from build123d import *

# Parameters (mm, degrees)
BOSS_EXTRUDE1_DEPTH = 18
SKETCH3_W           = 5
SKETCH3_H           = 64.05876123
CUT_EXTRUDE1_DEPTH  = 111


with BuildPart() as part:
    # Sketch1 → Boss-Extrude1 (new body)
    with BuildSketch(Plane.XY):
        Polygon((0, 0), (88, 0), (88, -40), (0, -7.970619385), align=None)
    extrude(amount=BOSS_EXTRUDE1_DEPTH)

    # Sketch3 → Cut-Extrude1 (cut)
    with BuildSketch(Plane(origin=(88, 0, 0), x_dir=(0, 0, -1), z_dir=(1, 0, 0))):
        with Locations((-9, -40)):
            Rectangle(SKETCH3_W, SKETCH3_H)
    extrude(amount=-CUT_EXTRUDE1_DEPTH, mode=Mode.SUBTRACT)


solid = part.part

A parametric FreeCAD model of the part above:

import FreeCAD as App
import Part
import Sketcher

V = App.Vector
Q = App.Units.Quantity


def add_polygon(sketch, points):
    """Adds a closed chain of lines whose ends are joined by coincident constraints."""
    first, n = sketch.GeometryCount, len(points)
    for a, b in zip(points, points[1:] + points[:1]):
        sketch.addGeometry(Part.LineSegment(App.Vector(*a, 0), App.Vector(*b, 0)), False)
    for i in range(n):
        sketch.addConstraint(Sketcher.Constraint("Coincident", first + i, 2, first + (i + 1) % n, 1))

doc = App.newDocument("Part")
params = doc.addObject("Spreadsheet::Sheet", "Params")
for row, (alias, value) in enumerate([
    ("sketch1_width", "88 mm"),
    ("sketch1_height", "40 mm"),
    ("pad1_length", "18 mm"),
    ("sketch2_height", "5 mm"),
    ("pocket1_length", "111 mm"),
], start=1):
    params.set(f"A{row}", alias)
    params.set(f"B{row}", "=" + value)
    params.setAlias(f"B{row}", alias)

body = doc.addObject("PartDesign::Body", "Body")

sketch1 = body.newObject("Sketcher::SketchObject", "Sketch")
sketch1.AttachmentSupport = (doc.getObject("XY_Plane"), [""])
sketch1.MapMode = "FlatFace"
add_polygon(sketch1, [(88, 0), (0, 0), (0, -7.970619), (88, -40)])
sketch1.addConstraint([
    Sketcher.Constraint("Horizontal", 0),
    Sketcher.Constraint("Vertical", 1),
    Sketcher.Constraint("Vertical", 3),
    Sketcher.Constraint("Coincident", 0, 2, -1, 1),
    Sketcher.Constraint("DistanceX", 0, 2, 0, 1, 88.0),
    Sketcher.Constraint("DistanceY", 3, 1, 3, 2, 40.0),
    Sketcher.Constraint("Angle", 2, Q("-20 deg")),
])
sketch1.setExpression("Constraints[8]", "Params.sketch1_width")
sketch1.setExpression("Constraints[9]", "Params.sketch1_height")
pad1 = body.newObject("PartDesign::Pad", "Pad")
pad1.Profile = sketch1
pad1.setExpression("Length", "Params.pad1_length")

sketch2 = body.newObject("Sketcher::SketchObject", "Sketch001")
sketch2.AttachmentSupport = (doc.getObject("YZ_Plane"), [""])
sketch2.MapMode = "FlatFace"
sketch2.AttachmentOffset = App.Placement(V(0, 0, 88), App.Rotation())
add_polygon(sketch2, [(-7.970619, 11.5), (-72.029381, 11.5), (-72.029381, 6.5), (-7.970619, 6.5)])
sketch2.addConstraint([
    Sketcher.Constraint("Horizontal", 0),
    Sketcher.Constraint("Vertical", 1),
    Sketcher.Constraint("Horizontal", 2),
    Sketcher.Constraint("Vertical", 3),
    Sketcher.Constraint("DistanceY", 1, 2, 1, 1, 5.0),
    Sketcher.Constraint("DistanceY", -1, 1, 0, 2, 11.5),
    Sketcher.Constraint("DistanceX", 0, 2, 0, 1, 64.058761),
    Sketcher.Constraint("DistanceX", 0, 2, -1, 1, 72.029381),
])
sketch2.setExpression("Constraints[8]", "Params.sketch2_height")
pocket1 = body.newObject("PartDesign::Pocket", "Pocket")
pocket1.Profile = sketch2
pocket1.setExpression("Length", "Params.pocket1_length")

doc.recompute()
